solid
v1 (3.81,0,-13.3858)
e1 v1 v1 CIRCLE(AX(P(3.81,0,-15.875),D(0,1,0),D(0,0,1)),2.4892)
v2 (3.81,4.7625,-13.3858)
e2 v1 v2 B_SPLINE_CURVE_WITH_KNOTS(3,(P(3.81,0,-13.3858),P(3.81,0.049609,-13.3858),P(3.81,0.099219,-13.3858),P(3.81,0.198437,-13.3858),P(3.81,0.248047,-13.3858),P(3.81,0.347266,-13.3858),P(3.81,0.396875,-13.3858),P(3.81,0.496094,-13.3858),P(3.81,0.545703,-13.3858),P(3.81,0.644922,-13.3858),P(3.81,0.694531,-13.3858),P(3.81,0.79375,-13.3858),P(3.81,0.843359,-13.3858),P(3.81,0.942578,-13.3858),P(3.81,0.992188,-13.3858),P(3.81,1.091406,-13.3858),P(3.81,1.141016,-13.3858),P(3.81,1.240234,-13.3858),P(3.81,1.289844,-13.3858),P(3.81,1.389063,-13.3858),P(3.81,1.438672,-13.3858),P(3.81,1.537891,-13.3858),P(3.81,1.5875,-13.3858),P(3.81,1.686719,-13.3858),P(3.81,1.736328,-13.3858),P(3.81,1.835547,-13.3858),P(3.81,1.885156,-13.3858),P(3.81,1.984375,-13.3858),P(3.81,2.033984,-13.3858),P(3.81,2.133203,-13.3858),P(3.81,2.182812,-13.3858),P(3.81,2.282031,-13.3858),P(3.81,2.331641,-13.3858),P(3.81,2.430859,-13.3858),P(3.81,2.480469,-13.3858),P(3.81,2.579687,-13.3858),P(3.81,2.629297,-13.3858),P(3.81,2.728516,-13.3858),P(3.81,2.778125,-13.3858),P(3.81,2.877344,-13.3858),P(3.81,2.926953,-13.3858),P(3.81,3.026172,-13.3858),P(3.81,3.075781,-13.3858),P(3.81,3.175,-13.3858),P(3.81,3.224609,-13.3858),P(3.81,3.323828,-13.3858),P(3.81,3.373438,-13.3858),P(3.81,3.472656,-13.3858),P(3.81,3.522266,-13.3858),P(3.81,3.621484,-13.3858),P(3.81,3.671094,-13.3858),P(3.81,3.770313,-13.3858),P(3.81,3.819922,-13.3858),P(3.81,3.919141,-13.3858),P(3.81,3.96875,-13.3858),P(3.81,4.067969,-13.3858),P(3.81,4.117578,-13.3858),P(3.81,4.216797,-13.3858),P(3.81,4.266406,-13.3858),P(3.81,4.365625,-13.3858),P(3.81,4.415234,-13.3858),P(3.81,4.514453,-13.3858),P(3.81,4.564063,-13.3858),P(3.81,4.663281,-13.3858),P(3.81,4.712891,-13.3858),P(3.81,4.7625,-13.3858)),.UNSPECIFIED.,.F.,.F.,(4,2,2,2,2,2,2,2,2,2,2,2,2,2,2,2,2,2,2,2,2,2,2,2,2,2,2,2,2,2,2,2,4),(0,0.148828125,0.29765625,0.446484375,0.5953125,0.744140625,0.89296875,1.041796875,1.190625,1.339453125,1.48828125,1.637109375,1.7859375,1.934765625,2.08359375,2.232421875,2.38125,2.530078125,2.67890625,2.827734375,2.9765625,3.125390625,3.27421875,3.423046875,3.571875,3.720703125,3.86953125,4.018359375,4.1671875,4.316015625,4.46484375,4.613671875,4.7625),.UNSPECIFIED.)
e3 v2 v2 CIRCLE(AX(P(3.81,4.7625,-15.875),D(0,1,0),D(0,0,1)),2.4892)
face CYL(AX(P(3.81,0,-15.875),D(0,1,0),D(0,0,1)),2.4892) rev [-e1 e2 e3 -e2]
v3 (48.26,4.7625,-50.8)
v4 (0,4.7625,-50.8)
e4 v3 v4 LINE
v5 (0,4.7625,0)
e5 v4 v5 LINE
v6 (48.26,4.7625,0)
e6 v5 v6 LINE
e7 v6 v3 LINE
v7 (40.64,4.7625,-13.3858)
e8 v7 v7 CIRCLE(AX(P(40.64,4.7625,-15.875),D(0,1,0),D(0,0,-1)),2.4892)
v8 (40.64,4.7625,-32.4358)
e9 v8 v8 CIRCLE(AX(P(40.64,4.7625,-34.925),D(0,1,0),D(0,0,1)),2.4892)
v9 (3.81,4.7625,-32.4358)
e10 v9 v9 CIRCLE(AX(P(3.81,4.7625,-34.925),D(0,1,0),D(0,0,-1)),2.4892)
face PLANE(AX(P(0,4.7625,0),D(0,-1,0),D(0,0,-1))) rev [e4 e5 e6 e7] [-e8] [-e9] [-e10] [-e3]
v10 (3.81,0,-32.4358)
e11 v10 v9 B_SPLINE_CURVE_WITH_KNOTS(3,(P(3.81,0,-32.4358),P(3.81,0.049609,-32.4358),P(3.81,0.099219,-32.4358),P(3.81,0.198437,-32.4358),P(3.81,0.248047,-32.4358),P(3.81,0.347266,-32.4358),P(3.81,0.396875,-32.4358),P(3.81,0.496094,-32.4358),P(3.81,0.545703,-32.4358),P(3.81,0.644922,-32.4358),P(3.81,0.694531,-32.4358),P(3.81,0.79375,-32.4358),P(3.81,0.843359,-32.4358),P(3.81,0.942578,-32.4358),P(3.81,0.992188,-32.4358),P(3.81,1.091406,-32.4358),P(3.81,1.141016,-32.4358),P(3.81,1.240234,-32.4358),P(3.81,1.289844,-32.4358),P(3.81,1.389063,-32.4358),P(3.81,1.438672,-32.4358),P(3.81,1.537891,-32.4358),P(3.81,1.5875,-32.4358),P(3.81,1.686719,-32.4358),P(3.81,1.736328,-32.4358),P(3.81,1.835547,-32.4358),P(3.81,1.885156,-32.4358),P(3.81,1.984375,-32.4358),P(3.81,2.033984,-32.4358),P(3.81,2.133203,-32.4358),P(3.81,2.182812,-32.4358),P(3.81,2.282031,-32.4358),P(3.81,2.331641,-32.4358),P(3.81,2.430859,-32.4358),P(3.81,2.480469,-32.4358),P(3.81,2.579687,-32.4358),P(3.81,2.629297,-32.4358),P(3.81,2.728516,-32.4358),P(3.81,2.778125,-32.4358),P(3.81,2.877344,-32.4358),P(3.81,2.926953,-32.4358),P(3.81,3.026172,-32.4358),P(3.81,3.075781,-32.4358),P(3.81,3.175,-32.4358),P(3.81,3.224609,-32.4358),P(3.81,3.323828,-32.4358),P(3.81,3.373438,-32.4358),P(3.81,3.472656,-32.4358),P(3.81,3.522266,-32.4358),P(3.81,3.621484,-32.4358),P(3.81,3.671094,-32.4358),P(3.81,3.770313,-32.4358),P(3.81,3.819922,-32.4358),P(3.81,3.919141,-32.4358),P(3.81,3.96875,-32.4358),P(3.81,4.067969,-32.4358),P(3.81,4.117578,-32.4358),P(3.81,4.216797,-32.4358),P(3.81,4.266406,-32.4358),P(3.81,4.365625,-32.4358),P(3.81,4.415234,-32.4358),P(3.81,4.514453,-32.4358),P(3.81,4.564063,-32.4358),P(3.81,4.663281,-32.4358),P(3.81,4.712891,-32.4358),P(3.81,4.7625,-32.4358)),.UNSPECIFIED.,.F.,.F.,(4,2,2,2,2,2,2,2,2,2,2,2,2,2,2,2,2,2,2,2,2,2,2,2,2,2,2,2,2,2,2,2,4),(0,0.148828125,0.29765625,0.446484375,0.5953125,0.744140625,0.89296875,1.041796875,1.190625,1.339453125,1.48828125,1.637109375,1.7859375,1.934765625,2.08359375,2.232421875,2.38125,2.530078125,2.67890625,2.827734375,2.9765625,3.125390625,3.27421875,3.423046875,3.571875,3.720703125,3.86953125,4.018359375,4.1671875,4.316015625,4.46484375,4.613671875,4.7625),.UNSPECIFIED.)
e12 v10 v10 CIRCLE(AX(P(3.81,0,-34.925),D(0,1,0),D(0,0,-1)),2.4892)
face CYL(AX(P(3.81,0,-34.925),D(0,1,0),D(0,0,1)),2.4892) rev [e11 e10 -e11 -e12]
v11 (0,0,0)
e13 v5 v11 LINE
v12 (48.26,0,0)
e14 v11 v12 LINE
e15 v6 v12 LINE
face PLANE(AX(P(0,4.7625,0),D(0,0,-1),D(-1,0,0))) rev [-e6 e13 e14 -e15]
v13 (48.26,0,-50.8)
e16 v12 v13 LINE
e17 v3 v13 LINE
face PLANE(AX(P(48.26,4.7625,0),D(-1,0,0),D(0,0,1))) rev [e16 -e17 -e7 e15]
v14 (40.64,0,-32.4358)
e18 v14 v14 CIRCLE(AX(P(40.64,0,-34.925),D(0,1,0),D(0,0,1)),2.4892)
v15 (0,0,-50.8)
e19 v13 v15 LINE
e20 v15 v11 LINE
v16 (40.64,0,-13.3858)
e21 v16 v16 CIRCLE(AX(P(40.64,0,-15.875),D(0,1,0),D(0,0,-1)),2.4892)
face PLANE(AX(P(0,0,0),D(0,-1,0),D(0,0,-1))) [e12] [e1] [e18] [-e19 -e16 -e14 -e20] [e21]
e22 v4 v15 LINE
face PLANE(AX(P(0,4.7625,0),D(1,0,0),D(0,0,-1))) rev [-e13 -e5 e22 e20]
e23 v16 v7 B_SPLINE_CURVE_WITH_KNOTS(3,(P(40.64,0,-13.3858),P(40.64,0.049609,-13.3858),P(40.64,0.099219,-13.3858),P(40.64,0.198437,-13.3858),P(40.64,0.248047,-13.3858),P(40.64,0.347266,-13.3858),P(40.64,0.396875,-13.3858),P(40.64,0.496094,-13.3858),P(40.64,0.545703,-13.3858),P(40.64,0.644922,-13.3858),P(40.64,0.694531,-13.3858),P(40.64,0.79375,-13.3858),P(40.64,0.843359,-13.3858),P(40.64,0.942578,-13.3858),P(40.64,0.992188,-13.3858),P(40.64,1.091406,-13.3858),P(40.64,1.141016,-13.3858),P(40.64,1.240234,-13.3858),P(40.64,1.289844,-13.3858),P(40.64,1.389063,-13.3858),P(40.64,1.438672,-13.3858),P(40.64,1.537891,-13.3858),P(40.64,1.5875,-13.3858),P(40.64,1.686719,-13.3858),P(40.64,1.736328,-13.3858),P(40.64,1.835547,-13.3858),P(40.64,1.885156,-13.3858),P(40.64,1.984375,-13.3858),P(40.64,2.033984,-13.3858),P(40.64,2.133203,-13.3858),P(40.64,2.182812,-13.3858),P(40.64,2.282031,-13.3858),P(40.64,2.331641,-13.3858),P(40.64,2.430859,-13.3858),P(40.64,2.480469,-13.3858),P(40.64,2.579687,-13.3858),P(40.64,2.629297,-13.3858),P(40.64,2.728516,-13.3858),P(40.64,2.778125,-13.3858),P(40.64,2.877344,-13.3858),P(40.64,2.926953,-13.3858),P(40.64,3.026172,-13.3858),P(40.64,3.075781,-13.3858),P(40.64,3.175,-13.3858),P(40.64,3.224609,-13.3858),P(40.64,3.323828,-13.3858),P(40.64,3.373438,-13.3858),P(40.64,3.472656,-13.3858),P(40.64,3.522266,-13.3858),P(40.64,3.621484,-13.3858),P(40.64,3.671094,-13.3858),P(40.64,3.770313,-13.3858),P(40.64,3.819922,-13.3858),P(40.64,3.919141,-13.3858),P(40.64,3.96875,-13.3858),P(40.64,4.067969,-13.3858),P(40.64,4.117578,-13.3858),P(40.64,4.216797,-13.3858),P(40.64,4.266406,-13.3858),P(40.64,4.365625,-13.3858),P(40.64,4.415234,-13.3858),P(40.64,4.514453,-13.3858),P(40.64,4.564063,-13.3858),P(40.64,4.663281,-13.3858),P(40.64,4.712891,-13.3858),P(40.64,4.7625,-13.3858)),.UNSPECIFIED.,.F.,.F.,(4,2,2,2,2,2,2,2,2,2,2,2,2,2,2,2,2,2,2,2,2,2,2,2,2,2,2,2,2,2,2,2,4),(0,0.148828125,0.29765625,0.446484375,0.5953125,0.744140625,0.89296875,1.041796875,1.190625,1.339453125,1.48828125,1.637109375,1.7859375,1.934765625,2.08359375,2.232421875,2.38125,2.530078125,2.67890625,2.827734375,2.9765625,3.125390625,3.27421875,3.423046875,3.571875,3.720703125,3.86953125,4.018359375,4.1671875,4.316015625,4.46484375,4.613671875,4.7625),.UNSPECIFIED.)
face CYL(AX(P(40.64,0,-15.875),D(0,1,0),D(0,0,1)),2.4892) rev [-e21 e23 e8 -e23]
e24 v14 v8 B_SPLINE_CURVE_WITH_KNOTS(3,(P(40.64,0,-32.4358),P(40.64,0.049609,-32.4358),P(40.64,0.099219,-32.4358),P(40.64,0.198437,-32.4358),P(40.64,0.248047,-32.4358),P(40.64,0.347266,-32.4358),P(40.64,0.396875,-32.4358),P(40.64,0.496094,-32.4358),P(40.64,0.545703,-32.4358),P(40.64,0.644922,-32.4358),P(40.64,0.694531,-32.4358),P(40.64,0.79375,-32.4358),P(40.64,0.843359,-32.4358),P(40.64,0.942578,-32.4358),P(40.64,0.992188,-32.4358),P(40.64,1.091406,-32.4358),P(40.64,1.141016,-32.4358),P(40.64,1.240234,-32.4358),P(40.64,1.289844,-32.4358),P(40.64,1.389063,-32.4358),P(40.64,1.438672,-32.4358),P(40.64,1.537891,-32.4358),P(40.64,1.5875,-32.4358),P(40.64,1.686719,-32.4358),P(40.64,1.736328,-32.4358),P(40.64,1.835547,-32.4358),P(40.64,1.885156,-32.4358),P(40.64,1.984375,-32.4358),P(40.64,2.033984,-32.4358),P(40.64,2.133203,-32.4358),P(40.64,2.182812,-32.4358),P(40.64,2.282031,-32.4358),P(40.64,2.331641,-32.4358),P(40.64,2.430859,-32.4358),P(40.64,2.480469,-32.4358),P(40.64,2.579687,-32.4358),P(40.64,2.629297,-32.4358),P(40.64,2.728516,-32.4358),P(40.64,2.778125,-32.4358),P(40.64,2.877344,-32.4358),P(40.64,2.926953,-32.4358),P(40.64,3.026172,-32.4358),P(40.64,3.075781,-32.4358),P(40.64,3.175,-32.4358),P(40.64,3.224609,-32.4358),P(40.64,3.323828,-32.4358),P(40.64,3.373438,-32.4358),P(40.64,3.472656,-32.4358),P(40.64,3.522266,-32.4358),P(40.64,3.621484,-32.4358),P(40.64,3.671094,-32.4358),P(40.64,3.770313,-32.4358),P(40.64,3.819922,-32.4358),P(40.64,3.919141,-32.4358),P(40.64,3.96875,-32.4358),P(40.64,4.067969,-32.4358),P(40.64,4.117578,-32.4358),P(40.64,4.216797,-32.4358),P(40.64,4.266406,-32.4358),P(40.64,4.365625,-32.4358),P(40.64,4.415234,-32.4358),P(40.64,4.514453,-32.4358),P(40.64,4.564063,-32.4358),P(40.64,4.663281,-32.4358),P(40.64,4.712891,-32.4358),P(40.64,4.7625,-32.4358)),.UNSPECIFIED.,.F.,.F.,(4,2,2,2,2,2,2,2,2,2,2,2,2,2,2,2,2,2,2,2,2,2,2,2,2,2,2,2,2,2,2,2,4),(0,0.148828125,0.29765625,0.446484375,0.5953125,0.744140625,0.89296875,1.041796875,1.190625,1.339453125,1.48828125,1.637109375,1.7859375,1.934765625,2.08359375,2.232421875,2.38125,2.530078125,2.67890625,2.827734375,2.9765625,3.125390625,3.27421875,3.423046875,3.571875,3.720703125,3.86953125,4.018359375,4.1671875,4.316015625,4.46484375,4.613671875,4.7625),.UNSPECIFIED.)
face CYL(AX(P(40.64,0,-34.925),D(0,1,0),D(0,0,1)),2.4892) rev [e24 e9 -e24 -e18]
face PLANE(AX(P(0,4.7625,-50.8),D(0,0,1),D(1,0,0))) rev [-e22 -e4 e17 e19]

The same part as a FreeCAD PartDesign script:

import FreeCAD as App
import Part
import Sketcher

V = App.Vector
Q = App.Units.Quantity


def add_polygon(sketch, points):
    """Adds a closed chain of lines whose ends are joined by coincident constraints."""
    first, n = sketch.GeometryCount, len(points)
    for a, b in zip(points, points[1:] + points[:1]):
        sketch.addGeometry(Part.LineSegment(App.Vector(*a, 0), App.Vector(*b, 0)), False)
    for i in range(n):
        sketch.addConstraint(Sketcher.Constraint("Coincident", first + i, 2, first + (i + 1) % n, 1))

doc = App.newDocument("Part")
body = doc.addObject("PartDesign::Body", "Body")

# Sketch on XZ plane
sketch1 = body.newObject("Sketcher::SketchObject", "Sketch")
sketch1.AttachmentSupport = (doc.getObject("XZ_Plane"), [""])
sketch1.MapMode = "FlatFace"
add_polygon(sketch1, [(0, -51), (0, 0), (48, 0), (48, -51)])  # lines 0-3
sketch1.addConstraint([
    Sketcher.Constraint("Vertical", 0),
    Sketcher.Constraint("Horizontal", 1),
    Sketcher.Constraint("Vertical", 2),
    Sketcher.Constraint("Horizontal", 3),
    Sketcher.Constraint("Coincident", 0, 2, -1, 1),
    Sketcher.Constraint("DistanceY", 0, 1, 0, 2, Q("2 in")),
    Sketcher.Constraint("DistanceX", 1, 1, 1, 2, Q("1.9 in")),
])
pad1 = body.newObject("PartDesign::Pad", "Pad")
pad1.Profile = sketch1
pad1.Length = Q("0.1875 in")
pad1.Reversed = True

# Sketch on XZ plane
sketch2 = body.newObject("Sketcher::SketchObject", "Sketch001")
sketch2.AttachmentSupport = (doc.getObject("XZ_Plane"), [""])
sketch2.MapMode = "FlatFace"
sketch2.AttachmentOffset = App.Placement(V(0, 0, -0.1875 * 25.4), App.Rotation())
sketch2.addGeometry([
    Part.Circle(V(3.8, -15.9, 0), V(0, 0, 1), 2.5),
    Part.Circle(V(40.6, -15.9, 0), V(0, 0, 1), 2.5),
    Part.Circle(V(40.6, -34.9, 0), V(0, 0, 1), 2.5),
    Part.Circle(V(3.8, -34.9, 0), V(0, 0, 1), 2.5),
], False)
sketch2.addConstraint([
    Sketcher.Constraint("Equal", 0, 1),
    Sketcher.Constraint("Equal", 1, 2),
    Sketcher.Constraint("Equal", 2, 3),
    Sketcher.Constraint("Horizontal", 0, 3, 1, 3),
    Sketcher.Constraint("Horizontal", 2, 3, 3, 3),
    Sketcher.Constraint("Vertical", 1, 3, 2, 3),
    Sketcher.Constraint("Vertical", 0, 3, 3, 3),
    Sketcher.Constraint("Diameter", 0, Q("0.196 in")),
    Sketcher.Constraint("DistanceX", -1, 1, 1, 3, Q("1.6 in")),
    Sketcher.Constraint("DistanceX", -1, 1, 0, 3, Q("0.15 in")),
    Sketcher.Constraint("DistanceY", 2, 3, 1, 3, Q("0.75 in")),
    Sketcher.Constraint("DistanceY", 0, 3, -1, 1, Q("0.625 in")),
])
pocket1 = body.newObject("PartDesign::Pocket", "Pocket")
pocket1.Profile = sketch2
pocket1.Length = Q("0.1875 in")
pocket1.Reversed = True

doc.recompute()
